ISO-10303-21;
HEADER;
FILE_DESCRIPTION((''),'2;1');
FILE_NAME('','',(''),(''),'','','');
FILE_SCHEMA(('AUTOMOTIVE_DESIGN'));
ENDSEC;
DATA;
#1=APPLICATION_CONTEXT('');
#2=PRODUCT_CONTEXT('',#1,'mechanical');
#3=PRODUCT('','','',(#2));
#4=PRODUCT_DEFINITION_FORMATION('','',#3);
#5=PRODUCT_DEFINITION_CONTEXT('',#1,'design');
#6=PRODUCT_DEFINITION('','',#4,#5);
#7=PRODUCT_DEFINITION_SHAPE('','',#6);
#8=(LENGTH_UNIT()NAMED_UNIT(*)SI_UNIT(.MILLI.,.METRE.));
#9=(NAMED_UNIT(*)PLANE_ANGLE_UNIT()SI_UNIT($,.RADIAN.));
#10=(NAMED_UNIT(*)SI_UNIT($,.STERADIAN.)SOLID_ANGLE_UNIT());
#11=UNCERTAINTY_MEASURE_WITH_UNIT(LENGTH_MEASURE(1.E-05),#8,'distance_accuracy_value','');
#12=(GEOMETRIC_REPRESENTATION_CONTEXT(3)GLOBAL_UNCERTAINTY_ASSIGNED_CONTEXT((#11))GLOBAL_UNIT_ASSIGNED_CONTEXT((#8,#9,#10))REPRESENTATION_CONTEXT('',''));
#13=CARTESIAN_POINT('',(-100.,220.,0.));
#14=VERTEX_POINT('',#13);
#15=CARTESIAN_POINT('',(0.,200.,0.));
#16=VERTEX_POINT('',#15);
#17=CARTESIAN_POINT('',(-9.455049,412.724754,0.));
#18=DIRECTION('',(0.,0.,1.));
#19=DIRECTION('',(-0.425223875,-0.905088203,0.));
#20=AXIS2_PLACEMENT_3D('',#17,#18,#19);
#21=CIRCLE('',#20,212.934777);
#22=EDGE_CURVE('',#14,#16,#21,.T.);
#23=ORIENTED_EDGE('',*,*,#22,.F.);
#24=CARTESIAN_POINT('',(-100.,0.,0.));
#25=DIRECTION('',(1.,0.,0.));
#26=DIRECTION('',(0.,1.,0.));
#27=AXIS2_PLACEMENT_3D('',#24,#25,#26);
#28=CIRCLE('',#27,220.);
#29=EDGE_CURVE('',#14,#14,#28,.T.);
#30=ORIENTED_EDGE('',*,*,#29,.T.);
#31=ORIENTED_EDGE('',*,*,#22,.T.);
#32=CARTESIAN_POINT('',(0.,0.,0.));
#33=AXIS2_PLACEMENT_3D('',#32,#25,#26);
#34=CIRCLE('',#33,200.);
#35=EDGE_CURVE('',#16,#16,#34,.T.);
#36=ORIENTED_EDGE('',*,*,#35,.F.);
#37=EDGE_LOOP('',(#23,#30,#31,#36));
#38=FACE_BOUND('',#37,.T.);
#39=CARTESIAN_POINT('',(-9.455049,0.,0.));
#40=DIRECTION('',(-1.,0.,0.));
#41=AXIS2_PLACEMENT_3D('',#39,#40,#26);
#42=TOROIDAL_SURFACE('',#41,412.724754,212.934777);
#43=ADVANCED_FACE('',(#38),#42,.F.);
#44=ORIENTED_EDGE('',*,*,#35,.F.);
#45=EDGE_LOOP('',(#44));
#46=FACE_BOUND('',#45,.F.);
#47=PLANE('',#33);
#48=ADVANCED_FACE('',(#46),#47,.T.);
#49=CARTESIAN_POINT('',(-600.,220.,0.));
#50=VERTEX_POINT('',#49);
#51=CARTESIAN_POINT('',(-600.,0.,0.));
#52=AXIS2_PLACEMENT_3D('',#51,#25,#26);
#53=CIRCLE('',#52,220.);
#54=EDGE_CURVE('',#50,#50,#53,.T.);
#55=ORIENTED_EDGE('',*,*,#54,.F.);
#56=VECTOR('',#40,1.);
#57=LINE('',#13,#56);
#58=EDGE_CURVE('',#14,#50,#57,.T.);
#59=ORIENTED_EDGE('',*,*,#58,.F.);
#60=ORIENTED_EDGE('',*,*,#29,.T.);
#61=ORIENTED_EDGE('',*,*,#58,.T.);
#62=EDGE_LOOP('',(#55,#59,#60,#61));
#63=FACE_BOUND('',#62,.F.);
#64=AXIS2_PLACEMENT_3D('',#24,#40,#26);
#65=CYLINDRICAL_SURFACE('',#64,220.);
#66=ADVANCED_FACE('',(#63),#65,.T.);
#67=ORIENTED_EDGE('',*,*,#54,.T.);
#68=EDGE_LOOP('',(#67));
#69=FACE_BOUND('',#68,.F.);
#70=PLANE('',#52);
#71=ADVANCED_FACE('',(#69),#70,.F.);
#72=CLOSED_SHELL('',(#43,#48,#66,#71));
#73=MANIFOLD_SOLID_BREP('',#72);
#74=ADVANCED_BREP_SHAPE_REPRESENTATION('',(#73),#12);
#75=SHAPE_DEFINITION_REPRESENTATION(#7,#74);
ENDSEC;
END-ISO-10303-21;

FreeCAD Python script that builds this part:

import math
import FreeCAD as App
import Part
import Sketcher

V = App.Vector

doc = App.newDocument("Part")
body = doc.addObject("PartDesign::Body", "Body")

# Sketch on XY plane
sketch1 = body.newObject("Sketcher::SketchObject", "Sketch")
sketch1.AttachmentSupport = (doc.getObject("XY_Plane"), [""])
sketch1.MapMode = "FlatFace"
sketch1.addGeometry(Part.LineSegment(V(-600, 0, 0), V(0, 0, 0)), False)
sketch1.addGeometry(Part.LineSegment(V(0, 0, 0), V(0, 200, 0)), False)
sketch1.addGeometry(Part.ArcOfCircle(Part.Circle(V(-9, 413, 0), V(0, 0, 1), 213), math.radians(-115), math.radians(-87)), False)
sketch1.addGeometry(Part.LineSegment(V(-100, 220, 0), V(-600, 220, 0)), False)
sketch1.addGeometry(Part.LineSegment(V(-600, 220, 0), V(-600, 0, 0)), False)
sketch1.addConstraint(Sketcher.Constraint("Coincident", 0, 2, 1, 1))
sketch1.addConstraint(Sketcher.Constraint("Coincident", 1, 2, 2, 2))
sketch1.addConstraint(Sketcher.Constraint("Coincident", 2, 1, 3, 1))
sketch1.addConstraint(Sketcher.Constraint("Coincident", 3, 2, 4, 1))
sketch1.addConstraint(Sketcher.Constraint("Coincident", 4, 2, 0, 1))
sketch1.addConstraint(Sketcher.Constraint("Horizontal", 0))
sketch1.addConstraint(Sketcher.Constraint("Vertical", 1))
sketch1.addConstraint(Sketcher.Constraint("Horizontal", 3))
sketch1.addConstraint(Sketcher.Constraint("Vertical", 4))
sketch1.addConstraint(Sketcher.Constraint("Coincident", 0, 2, -1, 1))
sketch1.addConstraint(Sketcher.Constraint("DistanceX", 0, 1, 0, 2, 600.0))
sketch1.addConstraint(Sketcher.Constraint("DistanceX", 3, 2, 3, 1, 500.0))
sketch1.addConstraint(Sketcher.Constraint("DistanceY", 1, 1, 1, 2, 200.0))
sketch1.addConstraint(Sketcher.Constraint("DistanceY", 4, 2, 4, 1, 220.0))
sketch1.addConstraint(Sketcher.Constraint("Radius", 2, 212.9346))
revolution = body.newObject("PartDesign::Revolution", "Revolution")
revolution.Profile = sketch1
revolution.ReferenceAxis = (sketch1, ["H_Axis"])
revolution.Angle = 360

doc.recompute()
